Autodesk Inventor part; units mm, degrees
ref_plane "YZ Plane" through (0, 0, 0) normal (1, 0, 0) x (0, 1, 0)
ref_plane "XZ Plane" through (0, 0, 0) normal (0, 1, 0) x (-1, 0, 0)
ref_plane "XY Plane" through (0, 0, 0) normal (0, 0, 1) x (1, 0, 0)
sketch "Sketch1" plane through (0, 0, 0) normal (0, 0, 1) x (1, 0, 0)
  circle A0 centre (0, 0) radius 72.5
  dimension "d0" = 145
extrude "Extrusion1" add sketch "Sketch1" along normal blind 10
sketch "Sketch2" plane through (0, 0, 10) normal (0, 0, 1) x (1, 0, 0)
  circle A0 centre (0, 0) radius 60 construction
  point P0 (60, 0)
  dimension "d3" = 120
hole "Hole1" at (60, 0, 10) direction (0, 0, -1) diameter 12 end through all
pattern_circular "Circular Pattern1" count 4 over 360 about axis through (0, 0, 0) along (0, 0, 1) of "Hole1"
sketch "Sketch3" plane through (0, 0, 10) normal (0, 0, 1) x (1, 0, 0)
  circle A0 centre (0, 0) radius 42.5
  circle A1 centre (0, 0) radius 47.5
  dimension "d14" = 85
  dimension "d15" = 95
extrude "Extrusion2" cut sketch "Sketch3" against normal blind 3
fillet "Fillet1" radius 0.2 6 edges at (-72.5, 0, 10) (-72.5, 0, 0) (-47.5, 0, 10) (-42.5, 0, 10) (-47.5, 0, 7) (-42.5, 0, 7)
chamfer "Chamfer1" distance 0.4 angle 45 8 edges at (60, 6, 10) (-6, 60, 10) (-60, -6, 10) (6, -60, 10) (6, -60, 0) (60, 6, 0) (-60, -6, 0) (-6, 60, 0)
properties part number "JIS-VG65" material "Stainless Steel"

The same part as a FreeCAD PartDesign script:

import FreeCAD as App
import Part
import Sketcher
Q = App.Units.Quantity


def edges_at(feature, points):
    """Names of the edges that pass closest to the given points."""
    edges = feature.Shape.Edges
    near = lambda p: min(range(len(edges)), key=lambda i: edges[i].distToShape(Part.Vertex(*p))[0])
    return sorted({f"Edge{near(p) + 1}" for p in points})

doc = App.newDocument("Part")
body = doc.addObject("PartDesign::Body", "Body")

sketch1 = doc.addObject("Sketcher::SketchObject", "Sketch")
body.addObject(sketch1)
sketch1.AttachmentSupport = (doc.XY_Plane, [""])
sketch1.MapMode = "FlatFace"
sketch1.addGeometry(Part.Circle(App.Vector(0, 0, 0), App.Vector(0, 0, 1), 72), False)
sketch1.addConstraint([
    Sketcher.Constraint("Coincident", 0, 3, -1, 1),
    Sketcher.Constraint("Diameter", 0, Q("145 mm")),
])
pad1 = doc.addObject("PartDesign::Pad", "Pad")
body.addObject(pad1)
pad1.Profile = sketch1
pad1.Length = 10

sketch2 = doc.addObject("Sketcher::SketchObject", "Sketch001")
body.addObject(sketch2)
sketch2.AttachmentSupport = (doc.XY_Plane, [""])
sketch2.MapMode = "FlatFace"
sketch2.AttachmentOffset = App.Placement(App.Vector(0, 0, 10), App.Rotation())
sketch2.addGeometry(Part.Circle(App.Vector(60, 0, 0), App.Vector(0, 0, 1), 6), False)
sketch2.addConstraint([
    Sketcher.Constraint("PointOnObject", 0, 3, -1),
    Sketcher.Constraint("Diameter", 0, Q("12 mm")),
    Sketcher.Constraint("DistanceX", -1, 1, 0, 3, Q("60 mm")),
])
doc.recompute()
hole = doc.addObject("PartDesign::Hole", "Hole")
body.addObject(hole)
hole.Profile = sketch2
hole.ThreadType = "None"
hole.Diameter = 12
hole.DepthType = "ThroughAll"
doc.recompute()

polarpattern = doc.addObject("PartDesign::PolarPattern", "PolarPattern")
body.addObject(polarpattern)
polarpattern.Originals = [hole]
polarpattern.Axis = (doc.Z_Axis, [""])
polarpattern.Angle = 360
polarpattern.Occurrences = 4
body.Tip = polarpattern

sketch3 = doc.addObject("Sketcher::SketchObject", "Sketch002")
body.addObject(sketch3)
sketch3.AttachmentSupport = (doc.XY_Plane, [""])
sketch3.MapMode = "FlatFace"
sketch3.AttachmentOffset = App.Placement(App.Vector(0, 0, 10), App.Rotation())
sketch3.addGeometry([
    Part.Circle(App.Vector(0, 0, 0), App.Vector(0, 0, 1), 48),
    Part.Circle(App.Vector(0, 0, 0), App.Vector(0, 0, 1), 42),
], False)
sketch3.addConstraint([
    Sketcher.Constraint("Coincident", 0, 3, -1, 1),
    Sketcher.Constraint("Coincident", 1, 3, -1, 1),
    Sketcher.Constraint("Diameter", 0, Q("95 mm")),
    Sketcher.Constraint("Diameter", 1, Q("85 mm")),
])
pocket1 = doc.addObject("PartDesign::Pocket", "Pocket")
body.addObject(pocket1)
pocket1.Profile = sketch3
pocket1.Length = 3
doc.recompute()

fillet = doc.addObject("PartDesign::Fillet", "Fillet")
body.addObject(fillet)
fillet.Base = (pocket1, edges_at(pocket1, [
    (-72.5, 0, 10),
    (-72.5, 0, 0),
    (-47.5, 0, 10),
    (-42.5, 0, 10),
    (-47.5, 0, 7),
    (-42.5, 0, 7),
]))
fillet.Radius = 0.2
doc.recompute()

chamfer = doc.addObject("PartDesign::Chamfer", "Chamfer")
body.addObject(chamfer)
chamfer.Base = (fillet, edges_at(fillet, [
    (60, 6, 10),
    (-6, 60, 10),
    (-60, -6, 10),
    (6, -60, 10),
    (6, -60, 0),
    (60, 6, 0),
    (-60, -6, 0),
    (-6, 60, 0),
]))
chamfer.Size = 0.4

doc.recompute()
